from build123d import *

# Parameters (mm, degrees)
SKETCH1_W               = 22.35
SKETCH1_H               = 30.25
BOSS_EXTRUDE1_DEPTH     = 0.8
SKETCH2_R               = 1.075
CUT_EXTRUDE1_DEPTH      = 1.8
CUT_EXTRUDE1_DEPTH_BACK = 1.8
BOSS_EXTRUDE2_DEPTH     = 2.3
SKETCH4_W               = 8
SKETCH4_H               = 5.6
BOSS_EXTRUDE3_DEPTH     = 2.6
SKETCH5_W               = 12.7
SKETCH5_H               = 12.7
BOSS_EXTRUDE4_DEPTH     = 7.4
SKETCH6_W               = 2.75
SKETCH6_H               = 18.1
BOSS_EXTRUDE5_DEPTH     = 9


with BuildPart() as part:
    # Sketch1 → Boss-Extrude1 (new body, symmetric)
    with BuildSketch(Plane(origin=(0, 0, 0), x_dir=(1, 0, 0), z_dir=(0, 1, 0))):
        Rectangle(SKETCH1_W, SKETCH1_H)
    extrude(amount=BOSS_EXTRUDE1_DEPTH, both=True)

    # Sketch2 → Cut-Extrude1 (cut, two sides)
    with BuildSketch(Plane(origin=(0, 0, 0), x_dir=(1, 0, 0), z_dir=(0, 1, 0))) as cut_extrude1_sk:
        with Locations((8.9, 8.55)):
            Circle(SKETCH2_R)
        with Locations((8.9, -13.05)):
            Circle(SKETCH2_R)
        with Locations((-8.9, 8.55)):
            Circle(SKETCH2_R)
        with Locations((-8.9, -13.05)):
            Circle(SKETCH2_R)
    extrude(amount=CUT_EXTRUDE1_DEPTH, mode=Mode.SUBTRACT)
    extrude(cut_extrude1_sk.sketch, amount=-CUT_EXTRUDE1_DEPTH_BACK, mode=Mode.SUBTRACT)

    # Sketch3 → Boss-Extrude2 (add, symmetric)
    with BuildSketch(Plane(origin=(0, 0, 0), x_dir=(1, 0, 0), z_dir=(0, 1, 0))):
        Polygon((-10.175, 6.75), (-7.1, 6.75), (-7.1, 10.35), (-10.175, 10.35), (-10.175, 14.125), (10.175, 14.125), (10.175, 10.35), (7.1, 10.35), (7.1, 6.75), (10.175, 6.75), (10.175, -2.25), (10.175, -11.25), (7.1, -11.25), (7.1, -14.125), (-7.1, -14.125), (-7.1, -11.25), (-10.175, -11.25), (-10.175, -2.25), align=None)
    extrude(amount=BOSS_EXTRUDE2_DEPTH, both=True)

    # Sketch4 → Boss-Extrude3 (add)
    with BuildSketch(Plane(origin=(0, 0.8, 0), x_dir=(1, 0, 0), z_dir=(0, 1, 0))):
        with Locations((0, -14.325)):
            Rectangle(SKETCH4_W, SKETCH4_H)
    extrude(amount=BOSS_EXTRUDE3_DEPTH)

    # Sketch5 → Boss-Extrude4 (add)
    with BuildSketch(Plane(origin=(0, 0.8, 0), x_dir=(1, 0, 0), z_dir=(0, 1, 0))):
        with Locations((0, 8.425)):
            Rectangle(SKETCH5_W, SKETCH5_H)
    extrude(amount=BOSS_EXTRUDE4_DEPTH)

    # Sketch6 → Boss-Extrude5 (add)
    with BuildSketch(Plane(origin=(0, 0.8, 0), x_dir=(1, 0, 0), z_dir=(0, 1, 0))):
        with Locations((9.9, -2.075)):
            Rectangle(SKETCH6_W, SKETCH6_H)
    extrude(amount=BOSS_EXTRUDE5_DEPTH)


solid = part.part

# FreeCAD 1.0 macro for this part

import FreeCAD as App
import Part
import Sketcher
Q = App.Units.Quantity


def add_polygon(sketch, points):
    """Adds a closed chain of lines whose ends are joined by coincident constraints."""
    first, n = sketch.GeometryCount, len(points)
    for a, b in zip(points, points[1:] + points[:1]):
        sketch.addGeometry(Part.LineSegment(App.Vector(*a, 0), App.Vector(*b, 0)), False)
    for i in range(n):
        sketch.addConstraint(Sketcher.Constraint("Coincident", first + i, 2, first + (i + 1) % n, 1))

doc = App.newDocument("Part")
body = doc.addObject("PartDesign::Body", "Body")

sketch1 = doc.addObject("Sketcher::SketchObject", "Sketch")
body.addObject(sketch1)
sketch1.AttachmentSupport = (doc.XZ_Plane, [""])
sketch1.MapMode = "FlatFace"
add_polygon(sketch1, [(-11, -15), (-11, 15), (11, 15), (11, -15)])
sketch1.addConstraint(Sketcher.Constraint("Vertical", 0))
sketch1.addConstraint(Sketcher.Constraint("Horizontal", 1))
sketch1.addConstraint(Sketcher.Constraint("Vertical", 2))
sketch1.addConstraint(Sketcher.Constraint("Horizontal", 3))
sketch1.addConstraint(Sketcher.Constraint("Symmetric", 0, 2, 2, 2, -1, 1))
sketch1.addConstraint(Sketcher.Constraint("DistanceX", 1, 1, 1, 2, Q("22.35 mm")))
sketch1.addConstraint(Sketcher.Constraint("DistanceY", 0, 1, 0, 2, Q("30.25 mm")))
pad1 = doc.addObject("PartDesign::Pad", "Pad")
body.addObject(pad1)
pad1.Profile = sketch1
pad1.Length = 1.6
pad1.Midplane = True

sketch2 = doc.addObject("Sketcher::SketchObject", "Sketch001")
body.addObject(sketch2)
sketch2.AttachmentSupport = (doc.XZ_Plane, [""])
sketch2.MapMode = "FlatFace"
sketch2.addGeometry(Part.Circle(App.Vector(8.9, -8.6, 0), App.Vector(0, 0, 1), 1.1), False)
sketch2.addGeometry(Part.Circle(App.Vector(8.9, 13.1, 0), App.Vector(0, 0, 1), 1.1), False)
sketch2.addGeometry(Part.Circle(App.Vector(-8.9, -8.6, 0), App.Vector(0, 0, 1), 1.1), False)
sketch2.addGeometry(Part.Circle(App.Vector(-8.9, 13.1, 0), App.Vector(0, 0, 1), 1.1), False)
sketch2.addConstraint(Sketcher.Constraint("Equal", 0, 1))
sketch2.addConstraint(Sketcher.Constraint("Equal", 1, 2))
sketch2.addConstraint(Sketcher.Constraint("Equal", 2, 3))
sketch2.addConstraint(Sketcher.Constraint("Symmetric", 0, 3, 2, 3, -2))
sketch2.addConstraint(Sketcher.Constraint("Symmetric", 1, 3, 3, 3, -2))
sketch2.addConstraint(Sketcher.Constraint("Vertical", 0, 3, 1, 3))
sketch2.addConstraint(Sketcher.Constraint("Diameter", 0, Q("2.15 mm")))
sketch2.addConstraint(Sketcher.Constraint("DistanceX", -1, 1, 0, 3, Q("8.9 mm")))
sketch2.addConstraint(Sketcher.Constraint("DistanceY", 0, 3, 1, 3, Q("21.6 mm")))
sketch2.addConstraint(Sketcher.Constraint("DistanceY", 0, 3, -1, 1, Q("8.55 mm")))
pocket1 = doc.addObject("PartDesign::Pocket", "Pocket")
body.addObject(pocket1)
pocket1.Profile = sketch2
pocket1.Type = "ThroughAll"
pocket1.Midplane = True

sketch3 = doc.addObject("Sketcher::SketchObject", "Sketch002")
body.addObject(sketch3)
sketch3.AttachmentSupport = (doc.XZ_Plane, [""])
sketch3.MapMode = "FlatFace"
add_polygon(sketch3, [(-7.1, -6.8), (-10.2, -6.8), (-10.2, 11.2), (-7.1, 11.2), (-7.1, 14.1), (7.1, 14.1), (7.1, 11.2), (10.2, 11.2), (10.2, -6.8), (7.1, -6.8), (7.1, -10.3), (10.2, -10.3), (10.2, -14.1), (-10.2, -14.1), (-10.2, -10.3), (-7.1, -10.3)])
sketch3.addConstraint(Sketcher.Constraint("Horizontal", 0))
sketch3.addConstraint(Sketcher.Constraint("Vertical", 1))
sketch3.addConstraint(Sketcher.Constraint("Horizontal", 2))
sketch3.addConstraint(Sketcher.Constraint("Vertical", 3))
sketch3.addConstraint(Sketcher.Constraint("Horizontal", 4))
sketch3.addConstraint(Sketcher.Constraint("Vertical", 5))
sketch3.addConstraint(Sketcher.Constraint("Horizontal", 6))
sketch3.addConstraint(Sketcher.Constraint("Vertical", 7))
sketch3.addConstraint(Sketcher.Constraint("Horizontal", 8))
sketch3.addConstraint(Sketcher.Constraint("Vertical", 9))
sketch3.addConstraint(Sketcher.Constraint("Horizontal", 10))
sketch3.addConstraint(Sketcher.Constraint("Vertical", 11))
sketch3.addConstraint(Sketcher.Constraint("Horizontal", 12))
sketch3.addConstraint(Sketcher.Constraint("Vertical", 13))
sketch3.addConstraint(Sketcher.Constraint("Horizontal", 14))
sketch3.addConstraint(Sketcher.Constraint("Vertical", 15))
sketch3.addConstraint(Sketcher.Constraint("Symmetric", 2, 2, 5, 2, -2))
sketch3.addConstraint(Sketcher.Constraint("Symmetric", 0, 2, 7, 2, -2))
sketch3.addConstraint(Sketcher.Constraint("Symmetric", 10, 2, 13, 2, -2))
sketch3.addConstraint(Sketcher.Constraint("Vertical", 5, 2, 8, 2))
sketch3.addConstraint(Sketcher.Constraint("Vertical", 7, 2, 10, 2))
sketch3.addConstraint(Sketcher.Constraint("Vertical", 3, 2, 14, 2))
sketch3.addConstraint(Sketcher.Constraint("DistanceY", 1, 1, 1, 2, Q("18 mm")))
sketch3.addConstraint(Sketcher.Constraint("DistanceX", 4, 1, 4, 2, Q("14.2 mm")))
sketch3.addConstraint(Sketcher.Constraint("DistanceY", 9, 2, 9, 1, Q("3.6 mm")))
sketch3.addConstraint(Sketcher.Constraint("DistanceX", 12, 2, 12, 1, Q("20.35 mm")))
sketch3.addConstraint(Sketcher.Constraint("DistanceY", 3, 1, 3, 2, Q("2.875 mm")))
sketch3.addConstraint(Sketcher.Constraint("DistanceY", 11, 2, 11, 1, Q("3.775 mm")))
sketch3.addConstraint(Sketcher.Constraint("DistanceY", 0, 2, -1, 1, Q("6.75 mm")))
pad2 = doc.addObject("PartDesign::Pad", "Pad001")
body.addObject(pad2)
pad2.Profile = sketch3
pad2.Length = 4.6
pad2.Midplane = True

sketch4 = doc.addObject("Sketcher::SketchObject", "Sketch003")
body.addObject(sketch4)
sketch4.AttachmentSupport = (doc.XZ_Plane, [""])
sketch4.MapMode = "FlatFace"
sketch4.AttachmentOffset = App.Placement(App.Vector(0, 0, -0.8), App.Rotation())
add_polygon(sketch4, [(-4, 12), (-4, 17), (4, 17), (4, 12)])
sketch4.addConstraint(Sketcher.Constraint("Vertical", 0))
sketch4.addConstraint(Sketcher.Constraint("Horizontal", 1))
sketch4.addConstraint(Sketcher.Constraint("Vertical", 2))
sketch4.addConstraint(Sketcher.Constraint("Horizontal", 3))
sketch4.addConstraint(Sketcher.Constraint("DistanceX", 1, 1, 1, 2, Q("8 mm")))
sketch4.addConstraint(Sketcher.Constraint("DistanceY", 0, 1, 0, 2, Q("5.6 mm")))
sketch4.addConstraint(Sketcher.Constraint("DistanceX", 0, 2, -1, 1, Q("4 mm")))
sketch4.addConstraint(Sketcher.Constraint("DistanceY", -1, 1, 0, 2, Q("17.125 mm")))
pad3 = doc.addObject("PartDesign::Pad", "Pad002")
body.addObject(pad3)
pad3.Profile = sketch4
pad3.Length = 2.6
pad3.Reversed = True

sketch5 = doc.addObject("Sketcher::SketchObject", "Sketch004")
body.addObject(sketch5)
sketch5.AttachmentSupport = (doc.XZ_Plane, [""])
sketch5.MapMode = "FlatFace"
sketch5.AttachmentOffset = App.Placement(App.Vector(0, 0, -0.8), App.Rotation())
add_polygon(sketch5, [(-6, -15), (-6, -2), (6, -2), (6, -15)])
sketch5.addConstraint(Sketcher.Constraint("Vertical", 0))
sketch5.addConstraint(Sketcher.Constraint("Horizontal", 1))
sketch5.addConstraint(Sketcher.Constraint("Vertical", 2))
sketch5.addConstraint(Sketcher.Constraint("Horizontal", 3))
sketch5.addConstraint(Sketcher.Constraint("Equal", 3, 0))
sketch5.addConstraint(Sketcher.Constraint("DistanceX", 1, 1, 1, 2, Q("12.7 mm")))
sketch5.addConstraint(Sketcher.Constraint("DistanceX", 0, 2, -1, 1, Q("6.35 mm")))
sketch5.addConstraint(Sketcher.Constraint("DistanceY", 0, 2, -1, 1, Q("2.075 mm")))
pad4 = doc.addObject("PartDesign::Pad", "Pad003")
body.addObject(pad4)
pad4.Profile = sketch5
pad4.Length = 7.4
pad4.Reversed = True

sketch6 = doc.addObject("Sketcher::SketchObject", "Sketch005")
body.addObject(sketch6)
sketch6.AttachmentSupport = (doc.XZ_Plane, [""])
sketch6.MapMode = "FlatFace"
sketch6.AttachmentOffset = App.Placement(App.Vector(0, 0, -0.8), App.Rotation())
add_polygon(sketch6, [(8.5, -7), (8.5, 11.1), (11.3, 11.1), (11.3, -7)])
sketch6.addConstraint(Sketcher.Constraint("Vertical", 0))
sketch6.addConstraint(Sketcher.Constraint("Horizontal", 1))
sketch6.addConstraint(Sketcher.Constraint("Vertical", 2))
sketch6.addConstraint(Sketcher.Constraint("Horizontal", 3))
sketch6.addConstraint(Sketcher.Constraint("DistanceY", 0, 1, 0, 2, Q("18.1 mm")))
sketch6.addConstraint(Sketcher.Constraint("DistanceX", 1, 1, 1, 2, Q("2.75 mm")))
sketch6.addConstraint(Sketcher.Constraint("DistanceX", -1, 1, 0, 2, Q("8.525 mm")))
sketch6.addConstraint(Sketcher.Constraint("DistanceY", -1, 1, 0, 2, Q("11.125 mm")))
pad5 = doc.addObject("PartDesign::Pad", "Pad004")
body.addObject(pad5)
pad5.Profile = sketch6
pad5.Length = 9
pad5.Reversed = True

doc.recompute()
